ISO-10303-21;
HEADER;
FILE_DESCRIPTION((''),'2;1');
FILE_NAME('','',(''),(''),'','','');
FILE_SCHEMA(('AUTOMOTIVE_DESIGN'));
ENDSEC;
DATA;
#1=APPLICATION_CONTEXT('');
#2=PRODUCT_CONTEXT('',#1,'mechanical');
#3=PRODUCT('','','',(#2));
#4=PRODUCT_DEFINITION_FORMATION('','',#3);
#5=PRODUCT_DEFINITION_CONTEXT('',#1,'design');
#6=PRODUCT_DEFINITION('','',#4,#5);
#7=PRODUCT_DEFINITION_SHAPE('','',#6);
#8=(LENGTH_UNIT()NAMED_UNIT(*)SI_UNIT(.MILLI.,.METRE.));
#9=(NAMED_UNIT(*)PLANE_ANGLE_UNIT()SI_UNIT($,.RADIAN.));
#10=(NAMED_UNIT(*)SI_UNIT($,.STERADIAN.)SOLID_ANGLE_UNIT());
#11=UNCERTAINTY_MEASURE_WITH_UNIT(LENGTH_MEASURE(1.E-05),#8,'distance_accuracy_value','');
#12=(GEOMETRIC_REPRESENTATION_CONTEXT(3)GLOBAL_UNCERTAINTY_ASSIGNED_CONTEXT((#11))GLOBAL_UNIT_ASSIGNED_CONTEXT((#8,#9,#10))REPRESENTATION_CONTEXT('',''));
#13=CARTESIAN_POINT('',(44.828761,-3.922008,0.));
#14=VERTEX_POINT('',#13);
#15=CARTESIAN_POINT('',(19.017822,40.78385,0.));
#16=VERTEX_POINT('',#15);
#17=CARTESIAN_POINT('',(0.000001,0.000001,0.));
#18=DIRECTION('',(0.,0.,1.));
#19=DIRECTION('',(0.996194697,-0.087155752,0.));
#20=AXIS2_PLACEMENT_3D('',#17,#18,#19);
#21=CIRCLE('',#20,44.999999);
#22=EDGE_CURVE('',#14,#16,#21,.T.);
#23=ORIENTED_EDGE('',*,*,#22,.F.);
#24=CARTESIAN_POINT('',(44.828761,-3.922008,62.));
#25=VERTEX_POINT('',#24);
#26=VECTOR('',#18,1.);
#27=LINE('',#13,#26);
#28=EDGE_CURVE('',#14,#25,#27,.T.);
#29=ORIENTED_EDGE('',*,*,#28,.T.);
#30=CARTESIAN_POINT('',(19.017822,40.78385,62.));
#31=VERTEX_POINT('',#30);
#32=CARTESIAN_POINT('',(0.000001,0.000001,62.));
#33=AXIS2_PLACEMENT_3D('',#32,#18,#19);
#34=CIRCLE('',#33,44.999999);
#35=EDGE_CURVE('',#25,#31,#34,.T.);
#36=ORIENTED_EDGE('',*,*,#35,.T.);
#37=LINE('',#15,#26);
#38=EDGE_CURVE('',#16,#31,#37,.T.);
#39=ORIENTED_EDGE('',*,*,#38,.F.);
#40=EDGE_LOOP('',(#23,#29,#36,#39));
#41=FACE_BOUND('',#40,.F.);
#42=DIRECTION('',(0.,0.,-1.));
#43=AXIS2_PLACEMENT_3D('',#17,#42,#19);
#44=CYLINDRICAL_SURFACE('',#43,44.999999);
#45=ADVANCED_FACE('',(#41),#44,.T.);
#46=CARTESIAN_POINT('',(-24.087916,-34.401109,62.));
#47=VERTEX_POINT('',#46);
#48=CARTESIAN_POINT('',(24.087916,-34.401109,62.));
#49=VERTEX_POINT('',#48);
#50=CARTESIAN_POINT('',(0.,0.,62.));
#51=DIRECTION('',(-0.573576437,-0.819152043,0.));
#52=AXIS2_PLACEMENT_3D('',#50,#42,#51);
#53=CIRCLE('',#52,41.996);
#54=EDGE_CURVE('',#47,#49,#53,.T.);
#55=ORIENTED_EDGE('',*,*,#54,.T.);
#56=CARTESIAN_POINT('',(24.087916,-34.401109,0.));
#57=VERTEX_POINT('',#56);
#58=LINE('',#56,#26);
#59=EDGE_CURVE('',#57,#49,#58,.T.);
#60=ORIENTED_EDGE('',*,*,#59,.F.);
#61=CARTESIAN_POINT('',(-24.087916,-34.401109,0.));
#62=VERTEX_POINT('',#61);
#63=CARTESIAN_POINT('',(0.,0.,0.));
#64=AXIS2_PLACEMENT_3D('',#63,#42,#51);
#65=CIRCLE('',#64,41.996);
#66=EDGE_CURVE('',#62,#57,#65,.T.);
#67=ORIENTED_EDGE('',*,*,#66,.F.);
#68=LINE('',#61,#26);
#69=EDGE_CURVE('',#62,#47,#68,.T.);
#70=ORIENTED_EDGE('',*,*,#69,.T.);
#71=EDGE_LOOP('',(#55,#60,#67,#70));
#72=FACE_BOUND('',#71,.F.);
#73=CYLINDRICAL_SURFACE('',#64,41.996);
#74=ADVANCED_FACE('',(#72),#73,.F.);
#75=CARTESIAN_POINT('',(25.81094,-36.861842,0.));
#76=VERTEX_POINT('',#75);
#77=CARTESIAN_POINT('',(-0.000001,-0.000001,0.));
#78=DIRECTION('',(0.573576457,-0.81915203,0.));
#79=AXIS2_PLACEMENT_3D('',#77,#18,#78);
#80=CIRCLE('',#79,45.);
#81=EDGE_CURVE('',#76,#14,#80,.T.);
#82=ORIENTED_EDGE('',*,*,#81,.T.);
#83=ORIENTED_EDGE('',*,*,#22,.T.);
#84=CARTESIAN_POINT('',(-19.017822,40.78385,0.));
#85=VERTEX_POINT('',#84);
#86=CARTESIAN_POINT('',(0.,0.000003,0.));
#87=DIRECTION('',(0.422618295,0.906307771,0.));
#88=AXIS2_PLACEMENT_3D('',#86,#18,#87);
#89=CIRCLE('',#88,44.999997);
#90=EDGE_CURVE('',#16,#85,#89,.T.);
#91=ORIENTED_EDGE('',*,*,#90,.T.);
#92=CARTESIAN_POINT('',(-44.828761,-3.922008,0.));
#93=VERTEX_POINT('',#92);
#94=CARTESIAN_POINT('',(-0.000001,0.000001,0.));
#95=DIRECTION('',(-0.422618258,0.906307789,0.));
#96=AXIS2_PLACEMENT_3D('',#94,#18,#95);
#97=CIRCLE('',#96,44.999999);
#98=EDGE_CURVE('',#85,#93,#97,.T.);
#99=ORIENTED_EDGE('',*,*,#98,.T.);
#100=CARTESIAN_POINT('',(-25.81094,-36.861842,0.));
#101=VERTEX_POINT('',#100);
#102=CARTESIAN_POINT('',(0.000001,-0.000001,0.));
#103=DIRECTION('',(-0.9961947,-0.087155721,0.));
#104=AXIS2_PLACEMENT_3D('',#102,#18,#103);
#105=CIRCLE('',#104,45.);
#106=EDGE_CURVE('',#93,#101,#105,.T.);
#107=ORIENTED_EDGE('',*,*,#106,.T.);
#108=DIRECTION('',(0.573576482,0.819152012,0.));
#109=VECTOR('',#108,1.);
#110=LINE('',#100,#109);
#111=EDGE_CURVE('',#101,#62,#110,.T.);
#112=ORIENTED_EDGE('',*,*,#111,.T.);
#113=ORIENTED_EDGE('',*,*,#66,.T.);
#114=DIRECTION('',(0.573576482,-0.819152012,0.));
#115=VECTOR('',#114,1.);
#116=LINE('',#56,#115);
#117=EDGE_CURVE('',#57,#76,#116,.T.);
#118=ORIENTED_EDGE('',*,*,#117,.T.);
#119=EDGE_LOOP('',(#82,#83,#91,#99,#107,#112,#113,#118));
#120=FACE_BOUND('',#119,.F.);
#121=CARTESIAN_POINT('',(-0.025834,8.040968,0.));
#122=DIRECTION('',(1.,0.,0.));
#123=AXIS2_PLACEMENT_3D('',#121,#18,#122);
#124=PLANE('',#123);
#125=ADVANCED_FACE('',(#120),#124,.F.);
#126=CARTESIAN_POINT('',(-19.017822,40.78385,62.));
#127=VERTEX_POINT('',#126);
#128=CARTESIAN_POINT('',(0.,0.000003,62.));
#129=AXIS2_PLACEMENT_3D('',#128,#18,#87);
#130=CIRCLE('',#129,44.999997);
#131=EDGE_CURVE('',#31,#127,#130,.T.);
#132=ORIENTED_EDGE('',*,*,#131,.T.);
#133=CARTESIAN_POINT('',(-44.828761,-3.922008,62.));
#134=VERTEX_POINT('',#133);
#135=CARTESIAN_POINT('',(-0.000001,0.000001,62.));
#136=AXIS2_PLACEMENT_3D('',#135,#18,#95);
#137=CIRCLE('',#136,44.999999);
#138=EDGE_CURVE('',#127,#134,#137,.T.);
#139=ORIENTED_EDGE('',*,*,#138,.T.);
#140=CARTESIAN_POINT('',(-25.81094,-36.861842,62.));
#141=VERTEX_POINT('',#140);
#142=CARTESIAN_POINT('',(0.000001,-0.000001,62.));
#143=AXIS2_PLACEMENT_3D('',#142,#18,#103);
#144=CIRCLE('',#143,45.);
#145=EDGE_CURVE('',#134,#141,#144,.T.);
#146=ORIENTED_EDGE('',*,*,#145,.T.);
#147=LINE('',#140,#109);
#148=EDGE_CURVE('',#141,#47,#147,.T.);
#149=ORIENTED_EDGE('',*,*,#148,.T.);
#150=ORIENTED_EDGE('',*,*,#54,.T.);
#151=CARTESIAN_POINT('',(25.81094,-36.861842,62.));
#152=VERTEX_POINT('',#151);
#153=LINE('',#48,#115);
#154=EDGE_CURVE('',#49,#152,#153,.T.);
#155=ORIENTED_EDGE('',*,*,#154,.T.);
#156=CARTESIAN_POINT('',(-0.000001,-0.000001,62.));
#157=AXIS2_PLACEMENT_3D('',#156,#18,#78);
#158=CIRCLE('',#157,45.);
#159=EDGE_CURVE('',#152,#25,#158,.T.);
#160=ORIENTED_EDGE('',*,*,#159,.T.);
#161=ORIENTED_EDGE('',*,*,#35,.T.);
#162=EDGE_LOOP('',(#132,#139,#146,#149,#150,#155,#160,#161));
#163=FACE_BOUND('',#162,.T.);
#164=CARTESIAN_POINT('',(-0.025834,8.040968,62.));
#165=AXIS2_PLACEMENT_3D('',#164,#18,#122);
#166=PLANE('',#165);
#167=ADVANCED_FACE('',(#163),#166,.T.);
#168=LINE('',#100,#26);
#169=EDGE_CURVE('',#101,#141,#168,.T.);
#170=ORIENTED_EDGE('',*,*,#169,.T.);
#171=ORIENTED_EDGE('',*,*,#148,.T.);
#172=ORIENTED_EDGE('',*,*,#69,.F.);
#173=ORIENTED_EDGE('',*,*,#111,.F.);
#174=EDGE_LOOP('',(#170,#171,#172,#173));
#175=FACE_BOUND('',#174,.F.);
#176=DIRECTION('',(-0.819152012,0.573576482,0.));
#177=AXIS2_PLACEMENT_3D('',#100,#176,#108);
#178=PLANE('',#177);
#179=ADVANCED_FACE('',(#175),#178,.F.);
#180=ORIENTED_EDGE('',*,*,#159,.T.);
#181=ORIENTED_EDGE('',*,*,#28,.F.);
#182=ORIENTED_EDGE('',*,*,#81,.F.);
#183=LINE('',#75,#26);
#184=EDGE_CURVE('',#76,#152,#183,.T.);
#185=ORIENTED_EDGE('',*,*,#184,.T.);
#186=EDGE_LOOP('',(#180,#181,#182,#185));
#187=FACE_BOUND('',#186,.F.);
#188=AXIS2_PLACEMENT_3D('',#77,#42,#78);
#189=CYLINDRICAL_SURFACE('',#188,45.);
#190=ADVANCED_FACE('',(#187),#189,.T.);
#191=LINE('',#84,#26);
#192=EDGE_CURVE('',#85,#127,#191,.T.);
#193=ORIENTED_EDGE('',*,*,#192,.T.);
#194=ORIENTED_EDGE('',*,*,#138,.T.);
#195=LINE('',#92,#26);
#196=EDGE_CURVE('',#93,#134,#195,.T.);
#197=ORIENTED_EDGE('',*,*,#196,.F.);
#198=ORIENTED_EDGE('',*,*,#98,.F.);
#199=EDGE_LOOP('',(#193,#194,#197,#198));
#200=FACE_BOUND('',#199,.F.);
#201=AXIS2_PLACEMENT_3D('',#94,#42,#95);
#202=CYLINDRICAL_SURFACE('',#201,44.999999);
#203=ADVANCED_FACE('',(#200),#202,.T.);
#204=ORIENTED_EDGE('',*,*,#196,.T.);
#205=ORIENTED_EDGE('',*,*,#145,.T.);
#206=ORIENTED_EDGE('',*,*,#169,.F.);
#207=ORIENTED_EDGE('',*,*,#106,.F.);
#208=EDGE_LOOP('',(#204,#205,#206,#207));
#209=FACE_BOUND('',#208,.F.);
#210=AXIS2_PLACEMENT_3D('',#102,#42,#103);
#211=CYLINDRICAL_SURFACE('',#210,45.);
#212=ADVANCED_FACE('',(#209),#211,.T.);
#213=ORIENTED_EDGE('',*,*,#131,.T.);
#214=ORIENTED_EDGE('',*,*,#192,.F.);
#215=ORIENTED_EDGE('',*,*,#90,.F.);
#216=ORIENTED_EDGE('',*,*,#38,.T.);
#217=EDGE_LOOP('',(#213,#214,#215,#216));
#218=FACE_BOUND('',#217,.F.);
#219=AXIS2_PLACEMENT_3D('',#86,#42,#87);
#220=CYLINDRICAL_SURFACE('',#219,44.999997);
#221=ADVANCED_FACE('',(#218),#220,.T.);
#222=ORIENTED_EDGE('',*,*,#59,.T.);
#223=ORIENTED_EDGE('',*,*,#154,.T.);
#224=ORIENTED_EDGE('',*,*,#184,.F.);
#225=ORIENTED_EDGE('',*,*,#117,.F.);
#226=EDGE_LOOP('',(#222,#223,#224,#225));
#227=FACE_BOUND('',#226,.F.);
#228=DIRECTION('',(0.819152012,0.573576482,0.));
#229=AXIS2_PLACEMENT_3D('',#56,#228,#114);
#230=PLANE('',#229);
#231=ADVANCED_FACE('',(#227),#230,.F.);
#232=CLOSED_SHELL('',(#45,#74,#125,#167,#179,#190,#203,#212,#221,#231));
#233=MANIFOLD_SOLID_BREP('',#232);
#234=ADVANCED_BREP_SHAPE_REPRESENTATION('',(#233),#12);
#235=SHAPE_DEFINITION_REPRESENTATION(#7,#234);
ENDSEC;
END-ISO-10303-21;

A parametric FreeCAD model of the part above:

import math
import FreeCAD as App
import Part
import Sketcher

V = App.Vector
Q = App.Units.Quantity

doc = App.newDocument("Part")
body = doc.addObject("PartDesign::Body", "Body")

# Sketch on XY plane
sketch1 = body.newObject("Sketcher::SketchObject", "Sketch")
sketch1.AttachmentSupport = (doc.getObject("XY_Plane"), [""])
sketch1.MapMode = "FlatFace"
sketch1.addGeometry(Part.LineSegment(V(24.1, -34.4, 0), V(25.8, -36.9, 0)), False)
sketch1.addGeometry(Part.ArcOfCircle(Part.Circle(V(0, 0, 0), V(0, 0, 1), 45), math.radians(-55), math.radians(-5)), False)
sketch1.addGeometry(Part.ArcOfCircle(Part.Circle(V(0, 0, 0), V(0, 0, 1), 45), math.radians(-5), math.radians(65)), False)
sketch1.addGeometry(Part.ArcOfCircle(Part.Circle(V(0, 0, 0), V(0, 0, 1), 45), math.radians(65), math.radians(115)), False)
sketch1.addGeometry(Part.ArcOfCircle(Part.Circle(V(0, 0, 0), V(0, 0, 1), 45), math.radians(115), math.radians(185)), False)
sketch1.addGeometry(Part.ArcOfCircle(Part.Circle(V(0, 0, 0), V(0, 0, 1), 45), math.radians(-175), math.radians(-125)), False)
sketch1.addGeometry(Part.LineSegment(V(-25.8, -36.9, 0), V(-24.1, -34.4, 0)), False)
sketch1.addGeometry(Part.ArcOfCircle(Part.Circle(V(0, 0, 0), V(0, 0, 1), 42), math.radians(-55), math.radians(235)), False)
sketch1.addConstraint(Sketcher.Constraint("Coincident", 0, 2, 1, 1))
sketch1.addConstraint(Sketcher.Constraint("Tangent", 1, 2, 2, 1))
sketch1.addConstraint(Sketcher.Constraint("Tangent", 2, 2, 3, 1))
sketch1.addConstraint(Sketcher.Constraint("Tangent", 3, 2, 4, 1))
sketch1.addConstraint(Sketcher.Constraint("Tangent", 4, 2, 5, 1))
sketch1.addConstraint(Sketcher.Constraint("Coincident", 5, 2, 6, 1))
sketch1.addConstraint(Sketcher.Constraint("Coincident", 6, 2, 7, 2))
sketch1.addConstraint(Sketcher.Constraint("Coincident", 7, 1, 0, 1))
sketch1.addConstraint(Sketcher.Constraint("Coincident", 1, 3, -1, 1))
sketch1.addConstraint(Sketcher.Constraint("Coincident", 3, 3, -1, 1))
sketch1.addConstraint(Sketcher.Constraint("Coincident", 5, 3, -1, 1))
sketch1.addConstraint(Sketcher.Constraint("Coincident", 7, 3, -1, 1))
sketch1.addConstraint(Sketcher.Constraint("Horizontal", 2, 2, 3, 2))
sketch1.addConstraint(Sketcher.Constraint("Horizontal", 1, 2, 4, 2))
sketch1.addConstraint(Sketcher.Constraint("Horizontal", 0, 2, 5, 2))
sketch1.addConstraint(Sketcher.Constraint("Horizontal", 6, 2, 7, 1))
sketch1.addConstraint(Sketcher.Constraint("Radius", 1, 45.0))
sketch1.addConstraint(Sketcher.Constraint("Angle", 0, Q("-54.999997 deg")))
sketch1.addConstraint(Sketcher.Constraint("Radius", 7, 41.996))
sketch1.addConstraint(Sketcher.Constraint("DistanceY", 6, 2, 4, 2, 30.479101))
sketch1.addConstraint(Sketcher.Constraint("DistanceX", -1, 1, 0, 2, 25.81094))
sketch1.addConstraint(Sketcher.Constraint("DistanceX", -1, 1, 2, 2, 19.017822))
pad1 = body.newObject("PartDesign::Pad", "Pad")
pad1.Profile = sketch1
pad1.Length = 62

doc.recompute()
